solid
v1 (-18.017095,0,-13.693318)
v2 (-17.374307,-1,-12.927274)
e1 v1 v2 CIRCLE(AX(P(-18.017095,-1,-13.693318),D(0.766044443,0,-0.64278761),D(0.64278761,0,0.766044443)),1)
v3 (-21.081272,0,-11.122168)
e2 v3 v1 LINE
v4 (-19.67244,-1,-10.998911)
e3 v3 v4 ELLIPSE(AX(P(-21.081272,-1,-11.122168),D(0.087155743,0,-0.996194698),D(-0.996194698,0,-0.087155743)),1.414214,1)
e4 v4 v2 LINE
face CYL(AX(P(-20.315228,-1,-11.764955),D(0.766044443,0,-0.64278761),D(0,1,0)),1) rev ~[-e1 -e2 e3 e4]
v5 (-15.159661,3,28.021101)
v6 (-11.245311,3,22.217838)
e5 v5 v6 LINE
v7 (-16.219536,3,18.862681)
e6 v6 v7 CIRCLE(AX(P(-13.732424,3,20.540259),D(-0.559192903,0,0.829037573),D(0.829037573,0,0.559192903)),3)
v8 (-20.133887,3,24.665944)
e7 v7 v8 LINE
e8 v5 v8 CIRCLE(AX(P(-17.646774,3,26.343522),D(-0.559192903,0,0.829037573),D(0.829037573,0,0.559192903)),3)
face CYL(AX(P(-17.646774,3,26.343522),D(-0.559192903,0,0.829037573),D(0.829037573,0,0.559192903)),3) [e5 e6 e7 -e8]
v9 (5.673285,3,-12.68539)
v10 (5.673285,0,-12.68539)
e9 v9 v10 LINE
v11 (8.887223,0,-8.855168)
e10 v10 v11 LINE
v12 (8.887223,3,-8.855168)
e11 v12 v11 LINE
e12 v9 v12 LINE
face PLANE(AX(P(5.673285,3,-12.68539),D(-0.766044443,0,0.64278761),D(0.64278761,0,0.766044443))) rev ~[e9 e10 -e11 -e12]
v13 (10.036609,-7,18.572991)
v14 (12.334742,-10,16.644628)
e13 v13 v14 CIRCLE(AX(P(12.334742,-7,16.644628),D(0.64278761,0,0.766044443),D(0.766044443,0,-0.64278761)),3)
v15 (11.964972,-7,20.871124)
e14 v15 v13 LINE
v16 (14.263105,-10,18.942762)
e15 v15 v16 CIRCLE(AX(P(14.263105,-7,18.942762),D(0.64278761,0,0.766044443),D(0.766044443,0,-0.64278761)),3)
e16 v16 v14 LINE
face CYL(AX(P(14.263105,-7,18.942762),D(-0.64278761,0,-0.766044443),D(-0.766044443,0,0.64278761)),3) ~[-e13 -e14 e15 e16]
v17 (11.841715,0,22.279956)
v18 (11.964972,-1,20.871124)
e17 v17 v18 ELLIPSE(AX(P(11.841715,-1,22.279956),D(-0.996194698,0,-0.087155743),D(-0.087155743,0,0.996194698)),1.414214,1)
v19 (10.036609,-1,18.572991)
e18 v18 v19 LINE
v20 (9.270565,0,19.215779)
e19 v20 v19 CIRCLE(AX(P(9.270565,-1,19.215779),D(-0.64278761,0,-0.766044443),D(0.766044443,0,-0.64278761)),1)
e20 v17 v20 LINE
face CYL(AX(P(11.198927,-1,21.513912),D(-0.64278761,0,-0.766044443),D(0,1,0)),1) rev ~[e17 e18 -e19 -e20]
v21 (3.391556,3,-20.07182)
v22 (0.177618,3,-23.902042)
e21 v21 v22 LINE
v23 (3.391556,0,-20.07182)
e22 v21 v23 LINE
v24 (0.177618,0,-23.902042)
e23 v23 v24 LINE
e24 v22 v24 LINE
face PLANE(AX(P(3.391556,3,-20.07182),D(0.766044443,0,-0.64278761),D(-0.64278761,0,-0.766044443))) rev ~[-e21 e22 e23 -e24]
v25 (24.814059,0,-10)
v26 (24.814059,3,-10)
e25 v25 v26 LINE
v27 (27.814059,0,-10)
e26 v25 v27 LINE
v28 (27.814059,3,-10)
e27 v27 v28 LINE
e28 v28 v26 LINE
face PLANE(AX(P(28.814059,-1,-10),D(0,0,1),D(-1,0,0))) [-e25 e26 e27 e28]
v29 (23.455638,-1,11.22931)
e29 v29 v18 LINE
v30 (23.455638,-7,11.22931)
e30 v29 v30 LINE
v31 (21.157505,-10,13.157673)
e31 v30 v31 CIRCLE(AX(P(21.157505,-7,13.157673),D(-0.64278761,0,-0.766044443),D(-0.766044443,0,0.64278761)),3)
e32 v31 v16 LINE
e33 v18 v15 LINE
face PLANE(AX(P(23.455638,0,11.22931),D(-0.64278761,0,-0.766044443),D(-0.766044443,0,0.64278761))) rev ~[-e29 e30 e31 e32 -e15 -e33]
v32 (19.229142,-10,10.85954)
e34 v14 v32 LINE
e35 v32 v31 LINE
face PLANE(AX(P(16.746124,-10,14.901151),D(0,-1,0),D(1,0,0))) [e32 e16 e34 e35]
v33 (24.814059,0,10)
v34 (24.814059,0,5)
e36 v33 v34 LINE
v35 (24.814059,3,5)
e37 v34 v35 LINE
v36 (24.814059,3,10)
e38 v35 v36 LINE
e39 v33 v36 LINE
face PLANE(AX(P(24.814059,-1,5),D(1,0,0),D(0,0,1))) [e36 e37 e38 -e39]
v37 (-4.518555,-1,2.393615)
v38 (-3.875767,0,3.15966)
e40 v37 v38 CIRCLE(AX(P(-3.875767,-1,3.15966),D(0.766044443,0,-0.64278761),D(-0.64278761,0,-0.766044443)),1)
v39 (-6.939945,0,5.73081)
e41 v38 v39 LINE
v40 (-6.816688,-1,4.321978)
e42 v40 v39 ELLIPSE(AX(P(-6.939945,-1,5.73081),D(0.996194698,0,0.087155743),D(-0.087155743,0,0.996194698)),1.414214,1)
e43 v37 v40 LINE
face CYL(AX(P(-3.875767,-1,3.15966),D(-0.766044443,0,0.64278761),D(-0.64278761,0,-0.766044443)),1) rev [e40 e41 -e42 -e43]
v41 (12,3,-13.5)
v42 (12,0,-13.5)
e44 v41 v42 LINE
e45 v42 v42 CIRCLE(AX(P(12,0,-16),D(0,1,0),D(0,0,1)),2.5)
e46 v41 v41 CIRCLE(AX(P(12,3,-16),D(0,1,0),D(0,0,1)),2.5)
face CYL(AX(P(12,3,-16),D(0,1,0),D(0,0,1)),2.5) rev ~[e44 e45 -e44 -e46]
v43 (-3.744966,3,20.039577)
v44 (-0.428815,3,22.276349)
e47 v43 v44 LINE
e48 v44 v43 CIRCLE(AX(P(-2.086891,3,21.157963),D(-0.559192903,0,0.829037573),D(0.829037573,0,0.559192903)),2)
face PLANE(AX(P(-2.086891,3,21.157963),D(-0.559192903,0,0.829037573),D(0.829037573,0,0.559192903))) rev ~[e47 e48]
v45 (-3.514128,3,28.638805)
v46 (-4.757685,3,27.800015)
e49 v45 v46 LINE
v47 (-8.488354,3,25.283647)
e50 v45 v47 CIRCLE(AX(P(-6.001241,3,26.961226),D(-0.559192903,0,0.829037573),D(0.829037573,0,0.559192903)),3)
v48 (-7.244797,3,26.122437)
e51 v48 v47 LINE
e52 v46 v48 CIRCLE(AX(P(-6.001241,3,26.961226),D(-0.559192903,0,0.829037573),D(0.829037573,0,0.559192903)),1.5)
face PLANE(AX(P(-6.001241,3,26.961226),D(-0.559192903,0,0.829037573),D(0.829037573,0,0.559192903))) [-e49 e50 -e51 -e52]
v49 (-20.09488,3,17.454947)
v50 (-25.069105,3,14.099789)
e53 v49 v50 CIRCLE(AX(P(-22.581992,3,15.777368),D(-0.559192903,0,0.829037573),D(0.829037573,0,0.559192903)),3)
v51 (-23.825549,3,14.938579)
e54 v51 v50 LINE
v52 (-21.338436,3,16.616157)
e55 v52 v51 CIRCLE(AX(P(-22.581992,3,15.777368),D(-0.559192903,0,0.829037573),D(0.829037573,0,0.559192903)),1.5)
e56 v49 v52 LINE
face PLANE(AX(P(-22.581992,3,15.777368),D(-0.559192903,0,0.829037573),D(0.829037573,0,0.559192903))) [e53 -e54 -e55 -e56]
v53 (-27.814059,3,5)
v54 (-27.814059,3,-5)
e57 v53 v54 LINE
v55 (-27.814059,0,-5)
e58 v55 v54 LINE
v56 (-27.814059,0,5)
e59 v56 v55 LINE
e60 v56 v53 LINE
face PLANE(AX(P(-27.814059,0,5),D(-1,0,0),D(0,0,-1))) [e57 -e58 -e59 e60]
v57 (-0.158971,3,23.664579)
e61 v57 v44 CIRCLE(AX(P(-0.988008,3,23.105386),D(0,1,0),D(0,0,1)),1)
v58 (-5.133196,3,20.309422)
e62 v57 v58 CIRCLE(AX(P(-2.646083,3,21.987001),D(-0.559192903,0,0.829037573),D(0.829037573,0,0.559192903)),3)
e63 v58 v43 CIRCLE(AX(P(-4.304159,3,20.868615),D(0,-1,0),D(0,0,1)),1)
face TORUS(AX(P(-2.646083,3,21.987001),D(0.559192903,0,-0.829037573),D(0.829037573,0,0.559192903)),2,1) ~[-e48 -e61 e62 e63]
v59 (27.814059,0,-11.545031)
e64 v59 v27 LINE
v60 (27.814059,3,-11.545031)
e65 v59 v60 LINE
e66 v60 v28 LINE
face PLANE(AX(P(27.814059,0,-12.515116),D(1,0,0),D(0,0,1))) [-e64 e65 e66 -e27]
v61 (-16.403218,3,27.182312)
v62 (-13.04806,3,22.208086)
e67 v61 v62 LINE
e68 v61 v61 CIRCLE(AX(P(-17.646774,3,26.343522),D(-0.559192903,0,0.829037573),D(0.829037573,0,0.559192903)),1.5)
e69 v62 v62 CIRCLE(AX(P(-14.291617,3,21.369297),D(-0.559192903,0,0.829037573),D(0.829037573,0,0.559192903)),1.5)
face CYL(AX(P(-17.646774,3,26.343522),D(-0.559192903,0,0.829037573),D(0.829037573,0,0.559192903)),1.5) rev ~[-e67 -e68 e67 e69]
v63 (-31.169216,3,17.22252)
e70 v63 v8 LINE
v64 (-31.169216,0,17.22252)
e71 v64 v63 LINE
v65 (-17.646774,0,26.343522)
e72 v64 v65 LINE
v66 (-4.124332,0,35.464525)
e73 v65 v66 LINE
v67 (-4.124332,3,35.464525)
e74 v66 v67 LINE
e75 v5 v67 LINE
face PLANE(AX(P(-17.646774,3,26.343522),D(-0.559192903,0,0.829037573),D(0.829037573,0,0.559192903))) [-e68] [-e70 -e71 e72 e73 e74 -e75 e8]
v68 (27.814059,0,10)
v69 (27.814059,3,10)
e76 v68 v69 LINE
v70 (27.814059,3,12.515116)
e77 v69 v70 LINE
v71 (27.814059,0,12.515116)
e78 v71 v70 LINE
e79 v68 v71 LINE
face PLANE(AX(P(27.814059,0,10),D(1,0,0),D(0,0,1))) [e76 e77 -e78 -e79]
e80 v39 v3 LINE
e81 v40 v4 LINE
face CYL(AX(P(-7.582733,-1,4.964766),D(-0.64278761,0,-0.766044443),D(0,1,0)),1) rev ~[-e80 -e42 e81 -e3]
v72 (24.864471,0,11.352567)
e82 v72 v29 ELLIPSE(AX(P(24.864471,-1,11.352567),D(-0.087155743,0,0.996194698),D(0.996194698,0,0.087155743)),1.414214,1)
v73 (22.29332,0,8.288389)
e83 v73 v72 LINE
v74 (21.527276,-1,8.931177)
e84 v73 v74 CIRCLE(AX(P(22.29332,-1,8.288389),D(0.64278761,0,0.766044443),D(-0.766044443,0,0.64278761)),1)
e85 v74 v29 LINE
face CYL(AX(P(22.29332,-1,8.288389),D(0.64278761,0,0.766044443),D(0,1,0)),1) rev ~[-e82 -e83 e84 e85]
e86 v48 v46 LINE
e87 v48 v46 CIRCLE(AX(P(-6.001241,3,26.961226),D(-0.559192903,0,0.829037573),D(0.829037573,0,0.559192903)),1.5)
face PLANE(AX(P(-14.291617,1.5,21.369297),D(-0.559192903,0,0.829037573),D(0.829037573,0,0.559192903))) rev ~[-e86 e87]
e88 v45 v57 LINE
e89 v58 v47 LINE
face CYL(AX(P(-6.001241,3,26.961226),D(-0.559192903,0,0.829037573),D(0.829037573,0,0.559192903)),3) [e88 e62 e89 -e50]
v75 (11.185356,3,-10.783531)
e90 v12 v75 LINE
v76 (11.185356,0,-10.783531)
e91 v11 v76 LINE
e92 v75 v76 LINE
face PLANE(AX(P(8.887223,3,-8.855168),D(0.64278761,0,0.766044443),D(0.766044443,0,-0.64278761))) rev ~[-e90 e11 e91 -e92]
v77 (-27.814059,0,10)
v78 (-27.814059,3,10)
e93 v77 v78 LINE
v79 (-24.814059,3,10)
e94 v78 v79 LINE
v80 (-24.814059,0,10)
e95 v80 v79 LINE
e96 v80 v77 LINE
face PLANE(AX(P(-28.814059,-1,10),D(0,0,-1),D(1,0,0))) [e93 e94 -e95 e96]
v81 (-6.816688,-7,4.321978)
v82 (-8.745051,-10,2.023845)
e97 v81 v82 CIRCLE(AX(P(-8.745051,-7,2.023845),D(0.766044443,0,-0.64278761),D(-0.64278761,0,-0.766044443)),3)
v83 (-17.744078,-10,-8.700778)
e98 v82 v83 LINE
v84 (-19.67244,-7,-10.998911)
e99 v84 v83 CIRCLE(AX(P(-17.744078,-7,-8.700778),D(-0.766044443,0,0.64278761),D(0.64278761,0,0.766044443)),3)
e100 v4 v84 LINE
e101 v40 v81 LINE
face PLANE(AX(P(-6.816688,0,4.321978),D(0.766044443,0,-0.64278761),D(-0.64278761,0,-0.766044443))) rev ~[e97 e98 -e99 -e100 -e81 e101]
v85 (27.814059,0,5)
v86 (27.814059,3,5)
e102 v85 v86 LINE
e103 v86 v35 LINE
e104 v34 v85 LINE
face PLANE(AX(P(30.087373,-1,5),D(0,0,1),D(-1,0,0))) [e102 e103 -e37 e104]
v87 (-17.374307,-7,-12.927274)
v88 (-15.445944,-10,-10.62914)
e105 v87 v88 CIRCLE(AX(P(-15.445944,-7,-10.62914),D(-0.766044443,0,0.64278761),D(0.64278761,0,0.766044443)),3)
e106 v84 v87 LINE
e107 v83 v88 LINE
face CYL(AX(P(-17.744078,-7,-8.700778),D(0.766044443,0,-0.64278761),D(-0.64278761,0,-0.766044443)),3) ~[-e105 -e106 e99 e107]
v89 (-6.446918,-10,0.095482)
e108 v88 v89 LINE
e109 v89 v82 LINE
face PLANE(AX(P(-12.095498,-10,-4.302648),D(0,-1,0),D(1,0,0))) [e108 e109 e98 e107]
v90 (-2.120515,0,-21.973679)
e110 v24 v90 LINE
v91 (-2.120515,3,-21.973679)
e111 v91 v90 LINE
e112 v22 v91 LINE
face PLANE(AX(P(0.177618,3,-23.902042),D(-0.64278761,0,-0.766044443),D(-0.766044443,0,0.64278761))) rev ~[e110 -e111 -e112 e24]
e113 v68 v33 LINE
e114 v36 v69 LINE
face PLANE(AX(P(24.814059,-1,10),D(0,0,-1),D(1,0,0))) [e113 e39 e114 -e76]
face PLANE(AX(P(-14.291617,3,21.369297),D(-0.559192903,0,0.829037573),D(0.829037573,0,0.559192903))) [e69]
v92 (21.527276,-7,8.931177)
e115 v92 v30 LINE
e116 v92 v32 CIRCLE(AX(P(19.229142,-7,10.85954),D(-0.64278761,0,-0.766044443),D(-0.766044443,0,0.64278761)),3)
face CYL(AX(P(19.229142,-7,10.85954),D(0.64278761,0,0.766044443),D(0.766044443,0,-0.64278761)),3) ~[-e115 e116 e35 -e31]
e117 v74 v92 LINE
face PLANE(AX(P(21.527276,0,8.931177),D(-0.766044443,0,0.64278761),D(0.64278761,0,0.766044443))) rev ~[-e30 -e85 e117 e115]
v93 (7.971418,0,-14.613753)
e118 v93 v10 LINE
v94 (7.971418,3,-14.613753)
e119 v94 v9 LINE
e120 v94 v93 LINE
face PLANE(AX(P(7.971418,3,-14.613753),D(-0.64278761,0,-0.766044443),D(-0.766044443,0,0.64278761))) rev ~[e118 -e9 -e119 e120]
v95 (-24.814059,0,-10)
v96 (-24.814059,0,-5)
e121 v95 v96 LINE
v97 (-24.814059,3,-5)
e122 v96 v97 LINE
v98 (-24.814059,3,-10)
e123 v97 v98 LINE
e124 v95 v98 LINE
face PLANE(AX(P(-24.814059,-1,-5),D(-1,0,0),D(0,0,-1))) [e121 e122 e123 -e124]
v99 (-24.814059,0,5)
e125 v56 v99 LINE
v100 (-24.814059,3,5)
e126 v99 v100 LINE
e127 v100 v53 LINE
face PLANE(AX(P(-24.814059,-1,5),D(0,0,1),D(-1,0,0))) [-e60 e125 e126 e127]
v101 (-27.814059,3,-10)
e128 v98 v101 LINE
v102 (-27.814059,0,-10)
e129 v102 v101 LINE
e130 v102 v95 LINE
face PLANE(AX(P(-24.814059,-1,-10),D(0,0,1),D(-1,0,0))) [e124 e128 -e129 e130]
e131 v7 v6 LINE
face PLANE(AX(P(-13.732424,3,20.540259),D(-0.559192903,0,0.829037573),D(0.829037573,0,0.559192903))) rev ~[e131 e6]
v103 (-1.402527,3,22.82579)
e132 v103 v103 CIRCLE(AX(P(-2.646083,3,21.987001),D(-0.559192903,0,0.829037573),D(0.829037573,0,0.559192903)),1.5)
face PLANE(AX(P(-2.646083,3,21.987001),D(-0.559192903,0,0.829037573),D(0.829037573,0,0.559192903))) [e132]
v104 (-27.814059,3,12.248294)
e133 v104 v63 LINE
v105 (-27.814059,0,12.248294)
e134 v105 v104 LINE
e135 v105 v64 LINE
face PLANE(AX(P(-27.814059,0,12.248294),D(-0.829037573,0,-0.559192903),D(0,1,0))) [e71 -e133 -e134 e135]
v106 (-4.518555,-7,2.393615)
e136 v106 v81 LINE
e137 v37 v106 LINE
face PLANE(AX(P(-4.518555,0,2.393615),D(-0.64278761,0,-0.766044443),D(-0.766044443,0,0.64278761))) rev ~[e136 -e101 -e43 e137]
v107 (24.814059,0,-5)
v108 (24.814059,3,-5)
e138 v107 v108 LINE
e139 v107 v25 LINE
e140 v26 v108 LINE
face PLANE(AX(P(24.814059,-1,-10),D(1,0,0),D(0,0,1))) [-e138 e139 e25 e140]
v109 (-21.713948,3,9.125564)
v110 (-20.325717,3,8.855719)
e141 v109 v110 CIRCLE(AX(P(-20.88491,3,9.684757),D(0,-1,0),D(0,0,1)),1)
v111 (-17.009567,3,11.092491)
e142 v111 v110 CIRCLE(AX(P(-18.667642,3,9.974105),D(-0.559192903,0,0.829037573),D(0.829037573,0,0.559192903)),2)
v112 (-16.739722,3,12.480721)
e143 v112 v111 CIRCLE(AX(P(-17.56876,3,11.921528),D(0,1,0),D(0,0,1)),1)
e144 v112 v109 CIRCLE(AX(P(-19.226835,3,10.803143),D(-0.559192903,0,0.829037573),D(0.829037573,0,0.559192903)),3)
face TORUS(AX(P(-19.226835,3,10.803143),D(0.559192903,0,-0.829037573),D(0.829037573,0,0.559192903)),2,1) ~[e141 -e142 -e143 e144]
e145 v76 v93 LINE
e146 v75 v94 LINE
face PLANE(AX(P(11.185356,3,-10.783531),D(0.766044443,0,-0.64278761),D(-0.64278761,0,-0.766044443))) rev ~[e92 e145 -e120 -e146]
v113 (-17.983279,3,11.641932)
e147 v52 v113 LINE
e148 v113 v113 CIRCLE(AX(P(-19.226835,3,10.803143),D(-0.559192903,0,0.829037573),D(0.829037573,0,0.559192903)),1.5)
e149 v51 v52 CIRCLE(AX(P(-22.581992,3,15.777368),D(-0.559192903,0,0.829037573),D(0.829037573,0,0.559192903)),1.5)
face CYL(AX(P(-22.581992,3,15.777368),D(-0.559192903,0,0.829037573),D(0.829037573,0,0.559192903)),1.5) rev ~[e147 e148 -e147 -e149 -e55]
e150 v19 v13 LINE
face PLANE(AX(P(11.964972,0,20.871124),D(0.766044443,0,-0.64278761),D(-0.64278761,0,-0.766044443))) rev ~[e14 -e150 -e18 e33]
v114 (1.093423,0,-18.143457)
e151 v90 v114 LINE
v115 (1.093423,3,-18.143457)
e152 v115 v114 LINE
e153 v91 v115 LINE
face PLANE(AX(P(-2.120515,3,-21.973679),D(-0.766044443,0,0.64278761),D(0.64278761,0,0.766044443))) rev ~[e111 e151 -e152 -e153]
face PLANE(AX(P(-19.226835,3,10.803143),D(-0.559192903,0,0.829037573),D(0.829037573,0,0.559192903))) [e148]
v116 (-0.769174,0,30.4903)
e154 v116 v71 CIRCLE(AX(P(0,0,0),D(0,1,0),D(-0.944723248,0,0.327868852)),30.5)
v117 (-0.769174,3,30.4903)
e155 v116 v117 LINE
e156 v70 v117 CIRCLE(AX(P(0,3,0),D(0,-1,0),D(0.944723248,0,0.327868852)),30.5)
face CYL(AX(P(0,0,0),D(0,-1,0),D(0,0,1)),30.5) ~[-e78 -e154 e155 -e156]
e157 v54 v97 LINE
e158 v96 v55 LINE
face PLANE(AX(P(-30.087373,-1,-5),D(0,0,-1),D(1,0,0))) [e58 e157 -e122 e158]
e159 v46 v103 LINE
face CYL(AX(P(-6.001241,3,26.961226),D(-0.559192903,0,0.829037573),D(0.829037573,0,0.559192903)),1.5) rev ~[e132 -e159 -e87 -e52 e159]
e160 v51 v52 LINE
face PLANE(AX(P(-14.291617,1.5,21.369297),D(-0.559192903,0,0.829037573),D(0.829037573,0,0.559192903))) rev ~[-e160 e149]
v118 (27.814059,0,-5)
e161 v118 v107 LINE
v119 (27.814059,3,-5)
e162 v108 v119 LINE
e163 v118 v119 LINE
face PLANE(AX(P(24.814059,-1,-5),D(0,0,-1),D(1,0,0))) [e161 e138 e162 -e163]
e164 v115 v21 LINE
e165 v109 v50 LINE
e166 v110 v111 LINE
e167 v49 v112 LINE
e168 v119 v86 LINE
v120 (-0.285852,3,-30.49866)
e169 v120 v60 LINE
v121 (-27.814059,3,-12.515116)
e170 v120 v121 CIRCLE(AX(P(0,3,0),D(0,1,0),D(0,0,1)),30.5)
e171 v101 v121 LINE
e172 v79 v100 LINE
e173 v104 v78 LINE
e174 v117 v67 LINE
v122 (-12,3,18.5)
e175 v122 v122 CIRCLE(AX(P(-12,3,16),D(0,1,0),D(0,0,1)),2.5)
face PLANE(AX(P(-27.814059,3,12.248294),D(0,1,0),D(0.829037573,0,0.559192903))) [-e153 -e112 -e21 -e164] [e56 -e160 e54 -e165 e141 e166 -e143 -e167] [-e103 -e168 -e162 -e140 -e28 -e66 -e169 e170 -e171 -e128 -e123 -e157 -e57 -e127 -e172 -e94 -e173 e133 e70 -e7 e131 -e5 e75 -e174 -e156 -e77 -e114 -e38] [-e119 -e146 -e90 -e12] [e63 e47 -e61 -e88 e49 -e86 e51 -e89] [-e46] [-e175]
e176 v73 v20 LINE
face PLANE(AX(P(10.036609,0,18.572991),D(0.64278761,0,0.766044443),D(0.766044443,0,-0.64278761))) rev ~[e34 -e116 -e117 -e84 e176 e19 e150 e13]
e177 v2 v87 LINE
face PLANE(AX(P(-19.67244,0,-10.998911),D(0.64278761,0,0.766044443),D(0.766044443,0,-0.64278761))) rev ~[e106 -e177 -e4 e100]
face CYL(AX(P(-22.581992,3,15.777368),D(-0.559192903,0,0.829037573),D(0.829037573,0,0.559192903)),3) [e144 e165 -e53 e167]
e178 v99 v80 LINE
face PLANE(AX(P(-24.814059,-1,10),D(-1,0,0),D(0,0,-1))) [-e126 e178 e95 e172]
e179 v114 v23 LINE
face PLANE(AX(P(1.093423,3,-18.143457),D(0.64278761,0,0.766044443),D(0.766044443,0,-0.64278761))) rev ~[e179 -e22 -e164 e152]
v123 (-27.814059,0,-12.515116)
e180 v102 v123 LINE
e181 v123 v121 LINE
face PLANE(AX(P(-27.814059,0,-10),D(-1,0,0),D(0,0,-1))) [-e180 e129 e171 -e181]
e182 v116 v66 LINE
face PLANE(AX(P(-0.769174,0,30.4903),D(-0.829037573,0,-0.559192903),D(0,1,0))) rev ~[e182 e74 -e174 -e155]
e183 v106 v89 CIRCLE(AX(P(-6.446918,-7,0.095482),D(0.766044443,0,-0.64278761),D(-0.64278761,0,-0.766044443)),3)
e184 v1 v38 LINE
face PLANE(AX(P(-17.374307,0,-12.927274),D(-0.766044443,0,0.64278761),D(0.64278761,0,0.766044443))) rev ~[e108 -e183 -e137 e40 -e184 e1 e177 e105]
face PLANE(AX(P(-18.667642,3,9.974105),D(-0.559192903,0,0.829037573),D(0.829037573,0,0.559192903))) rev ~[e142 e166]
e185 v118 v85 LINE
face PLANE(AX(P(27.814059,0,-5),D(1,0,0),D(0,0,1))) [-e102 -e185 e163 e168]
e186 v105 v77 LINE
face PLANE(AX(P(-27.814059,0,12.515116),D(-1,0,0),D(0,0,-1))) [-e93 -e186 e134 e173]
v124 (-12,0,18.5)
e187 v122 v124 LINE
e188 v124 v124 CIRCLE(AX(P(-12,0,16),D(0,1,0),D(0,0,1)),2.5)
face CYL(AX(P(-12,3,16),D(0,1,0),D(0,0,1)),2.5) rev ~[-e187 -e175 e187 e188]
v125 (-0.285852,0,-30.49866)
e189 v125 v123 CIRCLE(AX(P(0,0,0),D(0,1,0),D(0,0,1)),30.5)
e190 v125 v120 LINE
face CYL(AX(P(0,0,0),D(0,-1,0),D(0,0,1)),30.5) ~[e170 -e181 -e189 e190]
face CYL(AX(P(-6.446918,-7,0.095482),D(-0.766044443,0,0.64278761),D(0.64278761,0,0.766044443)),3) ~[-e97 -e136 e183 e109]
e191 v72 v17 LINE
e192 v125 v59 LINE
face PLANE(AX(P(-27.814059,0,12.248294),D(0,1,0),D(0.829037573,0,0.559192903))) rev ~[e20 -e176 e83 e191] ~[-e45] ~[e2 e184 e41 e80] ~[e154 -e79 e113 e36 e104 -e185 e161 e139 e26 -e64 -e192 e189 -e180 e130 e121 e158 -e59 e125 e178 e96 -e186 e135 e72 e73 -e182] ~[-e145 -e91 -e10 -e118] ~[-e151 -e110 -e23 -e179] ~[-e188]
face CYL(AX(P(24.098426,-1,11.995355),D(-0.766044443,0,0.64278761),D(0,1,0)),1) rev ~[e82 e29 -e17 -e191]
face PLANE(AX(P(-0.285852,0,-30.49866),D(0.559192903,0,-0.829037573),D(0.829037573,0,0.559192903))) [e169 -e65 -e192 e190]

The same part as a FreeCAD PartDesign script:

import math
import FreeCAD as App
import Part
import Sketcher
from FreeCAD import Vector
Q = App.Units.Quantity


def edges_at(feature, points):
    """Names of the edges that pass closest to the given points."""
    edges = feature.Shape.Edges
    near = lambda p: min(range(len(edges)), key=lambda i: edges[i].distToShape(Part.Vertex(*p))[0])
    return sorted({f"Edge{near(p) + 1}" for p in points})


def add_polygon(sketch, points):
    """Adds a closed chain of lines whose ends are joined by coincident constraints."""
    first, n = sketch.GeometryCount, len(points)
    for a, b in zip(points, points[1:] + points[:1]):
        sketch.addGeometry(Part.LineSegment(App.Vector(*a, 0), App.Vector(*b, 0)), False)
    for i in range(n):
        sketch.addConstraint(Sketcher.Constraint("Coincident", first + i, 2, first + (i + 1) % n, 1))

doc = App.newDocument("Part")
params = doc.addObject("Spreadsheet::Sheet", "Params")
for row, (alias, value) in enumerate([
    ("sketch1_diameter", "61 mm"),
    ("pad1_length", "3 mm"),
    ("sketch2_radius", "30.5 mm"),
    ("sketch2_width", "4 mm"),
    ("sketch2_height", "5 mm"),
    ("pocket1_length", "4 mm"),
    ("sketch3_length", "5 mm"),
    ("sketch3_length2", "3 mm"),
    ("pocket2_length", "10 mm"),
    ("sketch4_diameter", "5 mm"),
    ("pocket3_length", "10 mm"),
    ("sketch5_radius", "30.499999 mm"),
    ("sketch5_width", "1 mm"),
    ("sketch5_height", "10 mm"),
    ("pocket4_length", "3 mm"),
    ("sketch6_length", "20 mm"),
    ("sketch6_length2", "3 mm"),
    ("sketch6_length3", "15 mm"),
    ("pad2_length", "10 mm"),
    ("fillet_radius", "3 mm"),
    ("fillet2_radius", "1 mm"),
    ("sketch7_radius", "30.5 mm"),
    ("pocket5_length", "3 mm"),
    ("sketch8_radius", "30.5 mm"),
    ("pocket6_length", "10 mm"),
    ("sketch9_diameter", "6 mm"),
    ("pad3_length", "7 mm"),
    ("sketch10_diameter", "3 mm"),
    ("pocket7_length", "6 mm"),
    ("fillet3_radius", "1 mm"),
    ("sketch11_height", "3 mm"),
    ("pad4_length", "6 mm"),
    ("sketch12_diameter", "6 mm"),
    ("pad5_length", "7 mm"),
    ("sketch13_diameter", "3 mm"),
    ("pocket8_length", "6 mm"),
], start=1):
    params.set(f"A{row}", alias)
    params.set(f"B{row}", "=" + value)
    params.setAlias(f"B{row}", alias)

body = doc.addObject("PartDesign::Body", "Body")

# Sketch on XZ plane
sketch1 = body.newObject("Sketcher::SketchObject", "Sketch")
sketch1.AttachmentSupport = (doc.getObject("XZ_Plane"), [""])
sketch1.MapMode = "FlatFace"
sketch1.addGeometry(Part.Circle(Vector(0, 0, 0), Vector(0, 0, 1), 30), False)
sketch1.addConstraint([
    Sketcher.Constraint("Coincident", 0, 3, -1, 1),
    Sketcher.Constraint("Diameter", 0, 61.0),
])
sketch1.setExpression("Constraints[1]", "Params.sketch1_diameter")
pad1 = body.newObject("PartDesign::Pad", "Pad")
pad1.Profile = sketch1
pad1.setExpression("Length", "Params.pad1_length")
pad1.Reversed = True

# Sketch on XZ plane
sketch2 = body.newObject("Sketcher::SketchObject", "Sketch001")
sketch2.AttachmentSupport = (doc.getObject("XZ_Plane"), [""])
sketch2.MapMode = "FlatFace"
sketch2.AttachmentOffset = App.Placement(Vector(0, 0, 1), App.Rotation())
sketch2.addGeometry([
    Part.ArcOfCircle(Part.Circle(Vector(0, 0, 0), Vector(0, 0, 1), 30.5), math.radians(-19.14), math.radians(-9.44)),  # 0
    Part.LineSegment(Vector(28.8, -10, 0), Vector(24.8, -10, 0)),  # 1
    Part.LineSegment(Vector(24.8, -10, 0), Vector(24.8, -5, 0)),  # 2
    Part.LineSegment(Vector(24.8, -5, 0), Vector(30.1, -5, 0)),  # 3
    Part.LineSegment(Vector(30.1, 5, 0), Vector(24.8, 5, 0)),  # 4
    Part.LineSegment(Vector(24.8, 5, 0), Vector(24.8, 10, 0)),  # 5
    Part.LineSegment(Vector(24.8, 10, 0), Vector(28.8, 10, 0)),  # 6
    Part.ArcOfCircle(Part.Circle(Vector(0, 0, 0), Vector(0, 0, 1), 30.5), math.radians(9.44), math.radians(19.14)),  # 7
    Part.LineSegment(Vector(-24.8, -5, 0), Vector(-24.8, -10, 0)),  # 8
    Part.LineSegment(Vector(-24.8, -10, 0), Vector(-28.8, -10, 0)),  # 9
    Part.ArcOfCircle(Part.Circle(Vector(0, 0, 0), Vector(0, 0, 1), 30.5), math.radians(-170.56), math.radians(-160.86)),  # 10
    Part.LineSegment(Vector(-30.1, -5, 0), Vector(-24.8, -5, 0)),  # 11
    Part.LineSegment(Vector(-28.8, 10, 0), Vector(-24.8, 10, 0)),  # 12
    Part.LineSegment(Vector(-24.8, 10, 0), Vector(-24.8, 5, 0)),  # 13
    Part.LineSegment(Vector(-24.8, 5, 0), Vector(-30.1, 5, 0)),  # 14
    Part.ArcOfCircle(Part.Circle(Vector(0, 0, 0), Vector(0, 0, 1), 30.5), math.radians(160.86), math.radians(170.56)),  # 15
], False)
sketch2.addConstraint([
    Sketcher.Constraint("Coincident", 0, 1, 1, 1),
    Sketcher.Constraint("Coincident", 1, 2, 2, 1),
    Sketcher.Constraint("Coincident", 2, 2, 3, 1),
    Sketcher.Constraint("Coincident", 3, 2, 0, 2),
    Sketcher.Constraint("Coincident", 4, 2, 5, 1),
    Sketcher.Constraint("Coincident", 5, 2, 6, 1),
    Sketcher.Constraint("Coincident", 6, 2, 7, 2),
    Sketcher.Constraint("Coincident", 7, 1, 4, 1),
    Sketcher.Constraint("Coincident", 8, 2, 9, 1),
    Sketcher.Constraint("Coincident", 9, 2, 10, 2),
    Sketcher.Constraint("Coincident", 10, 1, 11, 1),
    Sketcher.Constraint("Coincident", 11, 2, 8, 1),
    Sketcher.Constraint("Coincident", 12, 2, 13, 1),
    Sketcher.Constraint("Coincident", 13, 2, 14, 1),
    Sketcher.Constraint("Coincident", 14, 2, 15, 2),
    Sketcher.Constraint("Coincident", 15, 1, 12, 1),
    Sketcher.Constraint("Horizontal", 1),
    Sketcher.Constraint("Vertical", 2),
    Sketcher.Constraint("Horizontal", 3),
    Sketcher.Constraint("Horizontal", 4),
    Sketcher.Constraint("Vertical", 5),
    Sketcher.Constraint("Horizontal", 6),
    Sketcher.Constraint("Vertical", 8),
    Sketcher.Constraint("Horizontal", 9),
    Sketcher.Constraint("Horizontal", 11),
    Sketcher.Constraint("Horizontal", 12),
    Sketcher.Constraint("Vertical", 13),
    Sketcher.Constraint("Horizontal", 14),
    Sketcher.Constraint("Coincident", 0, 3, -1, 1),
    Sketcher.Constraint("Coincident", 7, 3, -1, 1),
    Sketcher.Constraint("Coincident", 10, 3, -1, 1),
    Sketcher.Constraint("Coincident", 15, 3, -1, 1),
    Sketcher.Constraint("Equal", 0, 7),
    Sketcher.Constraint("Equal", 7, 10),
    Sketcher.Constraint("Equal", 10, 15),
    Sketcher.Constraint("Symmetric", 5, 2, 8, 2, -1, 1),
    Sketcher.Constraint("Symmetric", 1, 2, 12, 2, -1, 1),
    Sketcher.Constraint("Symmetric", 1, 2, 8, 2, -2),
    Sketcher.Constraint("Horizontal", 3, 2, 10, 1),
    Sketcher.Constraint("Horizontal", 7, 1, 13, 2),
    Sketcher.Constraint("Vertical", 3, 2, 7, 1),
    Sketcher.Constraint("Radius", 0, 30.5),
    Sketcher.Constraint("DistanceX", 1, 2, 1, 1, 4.0),
    Sketcher.Constraint("DistanceY", 2, 1, 2, 2, 5.0),
    Sketcher.Constraint("DistanceY", 0, 1, -1, 1, 10.0),
])
sketch2.setExpression("Constraints[41]", "Params.sketch2_radius")
sketch2.setExpression("Constraints[42]", "Params.sketch2_width")
sketch2.setExpression("Constraints[43]", "Params.sketch2_height")
pocket1 = body.newObject("PartDesign::Pocket", "Pocket")
pocket1.Profile = sketch2
pocket1.setExpression("Length", "Params.pocket1_length")

# Sketch on XZ plane
sketch3 = body.newObject("Sketcher::SketchObject", "Sketch002")
sketch3.AttachmentSupport = (doc.getObject("XZ_Plane"), [""])
sketch3.MapMode = "FlatFace"
sketch3.AttachmentOffset = App.Placement(Vector(0, 0, -3), App.Rotation())
add_polygon(sketch3, [(5.7, -12.7), (8.9, -8.9), (11.2, -10.8), (8, -14.6)])  # lines 0-3
add_polygon(sketch3, [(-2.1, -22), (1.1, -18.1), (3.4, -20.1), (0.2, -23.9)])  # lines 4-7
sketch3.addConstraint([
    Sketcher.Constraint("Perpendicular", 0, 1),
    Sketcher.Constraint("Perpendicular", 1, 2),
    Sketcher.Constraint("Perpendicular", 2, 3),
    Sketcher.Constraint("Perpendicular", 3, 4),
    Sketcher.Constraint("Perpendicular", 4, 5),
    Sketcher.Constraint("Perpendicular", 5, 6),
    Sketcher.Constraint("Perpendicular", 6, 7),
    Sketcher.Constraint("Equal", 2, 4),
    Sketcher.Constraint("Equal", 3, 5),
    Sketcher.Constraint("Angle", 0, Q("50 deg")),
    Sketcher.Constraint("Distance", 0, 5.0),
    Sketcher.Constraint("Distance", 1, 3.0),
    Sketcher.Constraint("DistanceX", 4, 2, 0, 2, 7.7938),
    Sketcher.Constraint("DistanceY", 0, 2, -1, 1, 8.855168),
    Sketcher.Constraint("DistanceX", -1, 1, 2, 2, 7.971418),
    Sketcher.Constraint("DistanceY", 5, 2, -1, 1, 20.07182),
])
sketch3.setExpression("Constraints[18]", "Params.sketch3_length")
sketch3.setExpression("Constraints[19]", "Params.sketch3_length2")
pocket2 = body.newObject("PartDesign::Pocket", "Pocket001")
pocket2.Profile = sketch3
pocket2.setExpression("Length", "Params.pocket2_length")
pocket2.Reversed = True

# Sketch on XZ plane
sketch4 = body.newObject("Sketcher::SketchObject", "Sketch003")
sketch4.AttachmentSupport = (doc.getObject("XZ_Plane"), [""])
sketch4.MapMode = "FlatFace"
sketch4.AttachmentOffset = App.Placement(Vector(0, 0, -3), App.Rotation())
sketch4.addGeometry([
    Part.Circle(Vector(12, -16, 0), Vector(0, 0, 1), 2.5),
    Part.Circle(Vector(-12, 16, 0), Vector(0, 0, 1), 2.5),
], False)
sketch4.addConstraint([
    Sketcher.Constraint("Equal", 0, 1),
    Sketcher.Constraint("Symmetric", 0, 3, 1, 3, -1, 1),
    Sketcher.Constraint("Diameter", 0, 5.0),
    Sketcher.Constraint("DistanceX", -1, 1, 0, 3, 12.0),
    Sketcher.Constraint("DistanceY", 0, 3, -1, 1, 16.0),
])
sketch4.setExpression("Constraints[2]", "Params.sketch4_diameter")
pocket3 = body.newObject("PartDesign::Pocket", "Pocket002")
pocket3.Profile = sketch4
pocket3.setExpression("Length", "Params.pocket3_length")
pocket3.Reversed = True

# Sketch on XZ plane
sketch5 = body.newObject("Sketcher::SketchObject", "Sketch004")
sketch5.AttachmentSupport = (doc.getObject("XZ_Plane"), [""])
sketch5.MapMode = "FlatFace"
sketch5.addGeometry([
    Part.ArcOfCircle(Part.Circle(Vector(0, 0, 0), Vector(0, 0, 1), 30.5), math.radians(155.77), math.radians(160.86)),  # 0
    Part.LineSegment(Vector(-27.8, 12.5, 0), Vector(-27.8, 10, 0)),  # 1
    Part.LineSegment(Vector(-27.8, 10, 0), Vector(-28.8, 10, 0)),  # 2
    Part.LineSegment(Vector(-27.8, 5, 0), Vector(-27.8, -5, 0)),  # 3
    Part.LineSegment(Vector(-27.8, -5, 0), Vector(-30.1, -5, 0)),  # 4
    Part.ArcOfCircle(Part.Circle(Vector(0, 0, 0), Vector(0, 0, 1), 30.5), math.radians(170.56), math.radians(189.44)),  # 5
    Part.LineSegment(Vector(-30.1, 5, 0), Vector(-27.8, 5, 0)),  # 6
    Part.LineSegment(Vector(-27.8, -10, 0), Vector(-27.8, -12.5, 0)),  # 7
    Part.ArcOfCircle(Part.Circle(Vector(0, 0, 0), Vector(0, 0, 1), 30.5), math.radians(-160.86), math.radians(-155.77)),  # 8
    Part.LineSegment(Vector(-28.8, -10, 0), Vector(-27.8, -10, 0)),  # 9
    Part.LineSegment(Vector(28.8, 10, 0), Vector(27.8, 10, 0)),  # 10
    Part.LineSegment(Vector(27.8, 10, 0), Vector(27.8, 12.5, 0)),  # 11
    Part.ArcOfCircle(Part.Circle(Vector(0, 0, 0), Vector(0, 0, 1), 30.5), math.radians(19.14), math.radians(24.23)),  # 12
    Part.LineSegment(Vector(30.1, -5, 0), Vector(27.8, -5, 0)),  # 13
    Part.LineSegment(Vector(27.8, -5, 0), Vector(27.8, 5, 0)),  # 14
    Part.LineSegment(Vector(27.8, 5, 0), Vector(30.1, 5, 0)),  # 15
    Part.ArcOfCircle(Part.Circle(Vector(0, 0, 0), Vector(0, 0, 1), 30.5), math.radians(-9.44), math.radians(9.44)),  # 16
    Part.LineSegment(Vector(27.8, -12.5, 0), Vector(27.8, -10, 0)),  # 17
    Part.LineSegment(Vector(27.8, -10, 0), Vector(28.8, -10, 0)),  # 18
    Part.ArcOfCircle(Part.Circle(Vector(0, 0, 0), Vector(0, 0, 1), 30.5), math.radians(-24.23), math.radians(-19.14)),  # 19
], False)
sketch5.addConstraint([
    Sketcher.Constraint("Coincident", 0, 1, 1, 1),
    Sketcher.Constraint("Coincident", 1, 2, 2, 1),
    Sketcher.Constraint("Coincident", 2, 2, 0, 2),
    Sketcher.Constraint("Coincident", 3, 2, 4, 1),
    Sketcher.Constraint("Coincident", 4, 2, 5, 2),
    Sketcher.Constraint("Coincident", 5, 1, 6, 1),
    Sketcher.Constraint("Coincident", 6, 2, 3, 1),
    Sketcher.Constraint("Coincident", 7, 2, 8, 2),
    Sketcher.Constraint("Coincident", 8, 1, 9, 1),
    Sketcher.Constraint("Coincident", 9, 2, 7, 1),
    Sketcher.Constraint("Coincident", 10, 2, 11, 1),
    Sketcher.Constraint("Coincident", 11, 2, 12, 2),
    Sketcher.Constraint("Coincident", 12, 1, 10, 1),
    Sketcher.Constraint("Coincident", 13, 2, 14, 1),
    Sketcher.Constraint("Coincident", 14, 2, 15, 1),
    Sketcher.Constraint("Coincident", 15, 2, 16, 2),
    Sketcher.Constraint("Coincident", 16, 1, 13, 1),
    Sketcher.Constraint("Coincident", 17, 2, 18, 1),
    Sketcher.Constraint("Coincident", 18, 2, 19, 2),
    Sketcher.Constraint("Coincident", 19, 1, 17, 1),
    Sketcher.Constraint("Vertical", 1),
    Sketcher.Constraint("Horizontal", 2),
    Sketcher.Constraint("Vertical", 3),
    Sketcher.Constraint("Horizontal", 4),
    Sketcher.Constraint("Horizontal", 6),
    Sketcher.Constraint("Vertical", 7),
    Sketcher.Constraint("Horizontal", 9),
    Sketcher.Constraint("Horizontal", 10),
    Sketcher.Constraint("Vertical", 11),
    Sketcher.Constraint("Horizontal", 13),
    Sketcher.Constraint("Vertical", 14),
    Sketcher.Constraint("Horizontal", 15),
    Sketcher.Constraint("Vertical", 17),
    Sketcher.Constraint("Horizontal", 18),
    Sketcher.Constraint("Coincident", 0, 3, -1, 1),
    Sketcher.Constraint("Coincident", 5, 3, -1, 1),
    Sketcher.Constraint("Coincident", 8, 3, -1, 1),
    Sketcher.Constraint("Coincident", 12, 3, -1, 1),
    Sketcher.Constraint("Coincident", 16, 3, -1, 1),
    Sketcher.Constraint("Coincident", 19, 3, -1, 1),
    Sketcher.Constraint("Equal", 0, 5),
    Sketcher.Constraint("Equal", 5, 8),
    Sketcher.Constraint("Equal", 8, 12),
    Sketcher.Constraint("Equal", 12, 16),
    Sketcher.Constraint("Equal", 16, 19),
    Sketcher.Constraint("Symmetric", 9, 2, 10, 2, -1, 1),
    Sketcher.Constraint("Symmetric", 6, 2, 13, 2, -1, 1),
    Sketcher.Constraint("Symmetric", 1, 2, 17, 2, -1, 1),
    Sketcher.Constraint("Symmetric", 1, 2, 10, 2, -2),
    Sketcher.Constraint("Horizontal", 4, 2, 13, 2),
    Sketcher.Constraint("Horizontal", 6, 2, 14, 2),
    Sketcher.Constraint("Vertical", 1, 2, 3, 2),
    Sketcher.Constraint("Radius", 0, 30.499999),
    Sketcher.Constraint("DistanceX", 2, 2, 2, 1, 1.0),
    Sketcher.Constraint("DistanceY", 3, 2, 3, 1, 10.0),
    Sketcher.Constraint("DistanceY", -1, 1, 1, 2, 10.0),
])
sketch5.setExpression("Constraints[52]", "Params.sketch5_radius")
sketch5.setExpression("Constraints[53]", "Params.sketch5_width")
sketch5.setExpression("Constraints[54]", "Params.sketch5_height")
pocket4 = body.newObject("PartDesign::Pocket", "Pocket003")
pocket4.Profile = sketch5
pocket4.setExpression("Length", "Params.pocket4_length")

# Sketch on XZ plane
sketch6 = body.newObject("Sketcher::SketchObject", "Sketch005")
sketch6.AttachmentSupport = (doc.getObject("XZ_Plane"), [""])
sketch6.MapMode = "FlatFace"
add_polygon(sketch6, [(-6.8, 4.3), (-19.7, -11), (-17.4, -12.9), (-4.5, 2.4)])  # lines 0-3
add_polygon(sketch6, [(21.5, 8.9), (23.5, 11.2), (12, 20.9), (10, 18.6)])  # lines 4-7
sketch6.addConstraint([
    Sketcher.Constraint("Perpendicular", 0, 1),
    Sketcher.Constraint("Perpendicular", 1, 2),
    Sketcher.Constraint("Perpendicular", 2, 3),
    Sketcher.Constraint("Perpendicular", 3, 4),
    Sketcher.Constraint("Perpendicular", 4, 5),
    Sketcher.Constraint("Perpendicular", 5, 6),
    Sketcher.Constraint("Perpendicular", 6, 7),
    Sketcher.Constraint("Equal", 3, 4),
    Sketcher.Constraint("Angle", 0, Q("-130 deg")),
    Sketcher.Constraint("Distance", 0, 20.0),
    Sketcher.Constraint("Distance", 1, 3.0),
    Sketcher.Constraint("Distance", 5, 15.0),
    Sketcher.Constraint("DistanceY", 1, 2, 5, 2, 33.798398),
    Sketcher.Constraint("DistanceX", 0, 2, -1, 1, 19.67244),
    Sketcher.Constraint("DistanceY", 0, 2, -1, 1, 10.998911),
    Sketcher.Constraint("DistanceX", -1, 1, 4, 2, 23.455638),
])
sketch6.setExpression("Constraints[17]", "Params.sketch6_length")
sketch6.setExpression("Constraints[18]", "Params.sketch6_length2")
sketch6.setExpression("Constraints[19]", "Params.sketch6_length3")
pad2 = body.newObject("PartDesign::Pad", "Pad001")
pad2.Profile = sketch6
pad2.setExpression("Length", "Params.pad2_length")
doc.recompute()

fillet = body.newObject("PartDesign::Fillet", "Fillet")
fillet.Base = (pad2, edges_at(pad2, [
    (-5.668, -10, 3.358),
    (-18.523, -10, -11.963),
    (22.491, -10, 10.08),
    (11.001, -10, 19.722),
]))
fillet.setExpression("Radius", "Params.fillet_radius")
doc.recompute()

fillet2 = body.newObject("PartDesign::Fillet", "Fillet001")
fillet2.Base = (fillet, edges_at(fillet, [
    (-5.668, 0, 3.358),
    (-13.245, 0, -3.338),
    (-18.523, 0, -11.963),
    (22.491, 0, 10.08),
    (17.71, 0, 16.05),
    (11.001, 0, 19.722),
]))
fillet2.setExpression("Radius", "Params.fillet2_radius")

# Sketch on XZ plane
sketch7 = body.newObject("Sketcher::SketchObject", "Sketch006")
sketch7.AttachmentSupport = (doc.getObject("XZ_Plane"), [""])
sketch7.MapMode = "FlatFace"
sketch7.addGeometry([
    Part.LineSegment(Vector(-0.3, -30.5, 0), Vector(27.8, -11.5, 0)),
    Part.LineSegment(Vector(27.8, -11.5, 0), Vector(27.8, -12.5, 0)),
    Part.ArcOfCircle(Part.Circle(Vector(0, 0, 0), Vector(0, 0, 1), 30.5), math.radians(-91), math.radians(-24)),
], False)
sketch7.addConstraint([
    Sketcher.Constraint("Coincident", 0, 2, 1, 1),
    Sketcher.Constraint("Coincident", 1, 2, 2, 2),
    Sketcher.Constraint("Coincident", 2, 1, 0, 1),
    Sketcher.Constraint("Vertical", 1),
    Sketcher.Constraint("Coincident", 2, 3, -1, 1),
    Sketcher.Constraint("Radius", 2, 30.5),
    Sketcher.Constraint("Angle", 0, Q("34 deg")),
    Sketcher.Constraint("DistanceY", 1, 2, 1, 1, 0.970084),
    Sketcher.Constraint("DistanceX", -1, 1, 0, 2, 27.814059),
])
sketch7.setExpression("Constraints[5]", "Params.sketch7_radius")
pocket5 = body.newObject("PartDesign::Pocket", "Pocket004")
pocket5.Profile = sketch7
pocket5.setExpression("Length", "Params.pocket5_length")

# Sketch on XZ plane
sketch8 = body.newObject("Sketcher::SketchObject", "Sketch007")
sketch8.AttachmentSupport = (doc.getObject("XZ_Plane"), [""])
sketch8.MapMode = "FlatFace"
sketch8.AttachmentOffset = App.Placement(Vector(0, 0, 7), App.Rotation())
sketch8.addGeometry([
    Part.LineSegment(Vector(-27.81, 12.25, 0), Vector(-27.81, 12.52, 0)),
    Part.ArcOfCircle(Part.Circle(Vector(0, 0, 0), Vector(0, 0, 1), 30.5), math.radians(91), math.radians(156)),
    Part.LineSegment(Vector(-0.77, 30.49, 0), Vector(-27.81, 12.25, 0)),
], False)
sketch8.addConstraint([
    Sketcher.Constraint("Coincident", 0, 2, 1, 2),
    Sketcher.Constraint("Coincident", 1, 1, 2, 1),
    Sketcher.Constraint("Coincident", 2, 2, 0, 1),
    Sketcher.Constraint("Vertical", 0),
    Sketcher.Constraint("Coincident", 1, 3, -1, 1),
    Sketcher.Constraint("Radius", 1, 30.5),
    Sketcher.Constraint("Angle", 2, Q("-146 deg")),
    Sketcher.Constraint("DistanceY", 0, 1, 0, 2, 0.266821),
    Sketcher.Constraint("DistanceY", -1, 1, 1, 1, 30.4903),
])
sketch8.setExpression("Constraints[5]", "Params.sketch8_radius")
pocket6 = body.newObject("PartDesign::Pocket", "Pocket005")
pocket6.Profile = sketch8
pocket6.setExpression("Length", "Params.pocket6_length")

# Sketch on an angled plane
sketch9 = body.newObject("Sketcher::SketchObject", "Sketch008")
sketch9.Placement = App.Placement(Vector(-14.375575, 0, 21.312666), App.Rotation(Vector(0.829037573, 0, 0.559192903), Vector(0, 1, 0), Vector(-0.559192903, 0, 0.829037573), "ZXY"))
sketch9.addGeometry([
    Part.Circle(Vector(10.1, 3, 0), Vector(0, 0, 1), 3),
    Part.Circle(Vector(-9.9, 3, 0), Vector(0, 0, 1), 3),
], False)
sketch9.addConstraint([
    Sketcher.Constraint("Equal", 0, 1),
    Sketcher.Constraint("Horizontal", 0, 3, 1, 3),
    Sketcher.Constraint("Diameter", 0, 6.0),
    Sketcher.Constraint("DistanceY", -1, 1, 0, 3, 3.0),
    Sketcher.Constraint("DistanceX", 1, 3, 0, 3, 20.0),
    Sketcher.Constraint("DistanceX", -1, 1, 0, 3, 10.101272),
])
sketch9.setExpression("Constraints[2]", "Params.sketch9_diameter")
pad3 = body.newObject("PartDesign::Pad", "Pad002")
pad3.Profile = sketch9
pad3.setExpression("Length", "Params.pad3_length")
pad3.Reversed = True

# Sketch on an angled plane
sketch10 = body.newObject("Sketcher::SketchObject", "Sketch009")
sketch10.Placement = App.Placement(Vector(-14.375575, 0, 21.312666), App.Rotation(Vector(0.829037573, 0, 0.559192903), Vector(0, 1, 0), Vector(-0.559192903, 0, 0.829037573), "ZXY"))
sketch10.addGeometry([
    Part.Circle(Vector(10.1, 3, 0), Vector(0, 0, 1), 1.5),
    Part.Circle(Vector(-9.9, 3, 0), Vector(0, 0, 1), 1.5),
], False)
sketch10.addConstraint([
    Sketcher.Constraint("Equal", 0, 1),
    Sketcher.Constraint("Horizontal", 0, 3, 1, 3),
    Sketcher.Constraint("Diameter", 0, 3.0),
    Sketcher.Constraint("DistanceY", -1, 1, 0, 3, 3.0),
    Sketcher.Constraint("DistanceX", 1, 3, 0, 3, 20.0),
    Sketcher.Constraint("DistanceX", -1, 1, 0, 3, 10.101272),
])
sketch10.setExpression("Constraints[2]", "Params.sketch10_diameter")
pocket7 = body.newObject("PartDesign::Pocket", "Pocket006")
pocket7.Profile = sketch10
pocket7.setExpression("Length", "Params.pocket7_length")
doc.recompute()

fillet3 = body.newObject("PartDesign::Fillet", "Fillet002")
fillet3.Base = (pocket7, edges_at(pocket7, [(-2.087, 6, 21.158), (-18.668, 6, 9.974)]))
fillet3.setExpression("Radius", "Params.fillet3_radius")

# Sketch on an angled plane
sketch11 = body.newObject("Sketcher::SketchObject", "Sketch010")
sketch11.Placement = App.Placement(Vector(-14.375575, 0, 21.312666), App.Rotation(Vector(0.829037573, 0, 0.559192903), Vector(0, 1, 0), Vector(-0.559192903, 0, 0.829037573), "ZXY"))
add_polygon(sketch11, [(-16.2, 3), (-16.2, 0), (16.4, 0), (16.4, 3)])  # lines 0-3
sketch11.addConstraint([
    Sketcher.Constraint("Vertical", 0),
    Sketcher.Constraint("Horizontal", 1),
    Sketcher.Constraint("Vertical", 2),
    Sketcher.Constraint("Horizontal", 3),
    Sketcher.Constraint("PointOnObject", 0, 2, -1),
    Sketcher.Constraint("DistanceY", 0, 2, 0, 1, 3.0),
    Sketcher.Constraint("DistanceX", 1, 1, 1, 2, 32.622026),
    Sketcher.Constraint("DistanceX", 0, 2, -1, 1, 16.209741),
])
sketch11.setExpression("Constraints[9]", "Params.sketch11_height")
pad4 = body.newObject("PartDesign::Pad", "Pad003")
pad4.Profile = sketch11
pad4.setExpression("Length", "Params.pad4_length")

# Sketch on an angled plane
sketch12 = body.newObject("Sketcher::SketchObject", "Sketch011")
sketch12.Placement = App.Placement(Vector(-17.730732, 0, 26.286892), App.Rotation(Vector(0.829037573, 0, 0.559192903), Vector(0, 1, 0), Vector(-0.559192903, 0, 0.829037573), "ZXY"))
sketch12.addGeometry(Part.Circle(Vector(0.1, 3, 0), Vector(0, 0, 1), 3), False)
sketch12.addConstraint([
    Sketcher.Constraint("Diameter", 0, 6.0),
    Sketcher.Constraint("DistanceY", -1, 1, 0, 3, 3.0),
    Sketcher.Constraint("DistanceX", -1, 1, 0, 3, 0.101272),
])
sketch12.setExpression("Constraints[0]", "Params.sketch12_diameter")
pad5 = body.newObject("PartDesign::Pad", "Pad004")
pad5.Profile = sketch12
pad5.setExpression("Length", "Params.pad5_length")
pad5.Reversed = True

# Sketch on an angled plane
sketch13 = body.newObject("Sketcher::SketchObject", "Sketch012")
sketch13.Placement = App.Placement(Vector(-17.730732, 0, 26.286892), App.Rotation(Vector(0.829037573, 0, 0.559192903), Vector(0, 1, 0), Vector(-0.559192903, 0, 0.829037573), "ZXY"))
sketch13.addGeometry(Part.Circle(Vector(0.1, 3, 0), Vector(0, 0, 1), 1.5), False)
sketch13.addConstraint([
    Sketcher.Constraint("Diameter", 0, 3.0),
    Sketcher.Constraint("DistanceY", -1, 1, 0, 3, 3.0),
    Sketcher.Constraint("DistanceX", -1, 1, 0, 3, 0.101272),
])
sketch13.setExpression("Constraints[0]", "Params.sketch13_diameter")
pocket8 = body.newObject("PartDesign::Pocket", "Pocket007")
pocket8.Profile = sketch13
pocket8.setExpression("Length", "Params.pocket8_length")

doc.recompute()
